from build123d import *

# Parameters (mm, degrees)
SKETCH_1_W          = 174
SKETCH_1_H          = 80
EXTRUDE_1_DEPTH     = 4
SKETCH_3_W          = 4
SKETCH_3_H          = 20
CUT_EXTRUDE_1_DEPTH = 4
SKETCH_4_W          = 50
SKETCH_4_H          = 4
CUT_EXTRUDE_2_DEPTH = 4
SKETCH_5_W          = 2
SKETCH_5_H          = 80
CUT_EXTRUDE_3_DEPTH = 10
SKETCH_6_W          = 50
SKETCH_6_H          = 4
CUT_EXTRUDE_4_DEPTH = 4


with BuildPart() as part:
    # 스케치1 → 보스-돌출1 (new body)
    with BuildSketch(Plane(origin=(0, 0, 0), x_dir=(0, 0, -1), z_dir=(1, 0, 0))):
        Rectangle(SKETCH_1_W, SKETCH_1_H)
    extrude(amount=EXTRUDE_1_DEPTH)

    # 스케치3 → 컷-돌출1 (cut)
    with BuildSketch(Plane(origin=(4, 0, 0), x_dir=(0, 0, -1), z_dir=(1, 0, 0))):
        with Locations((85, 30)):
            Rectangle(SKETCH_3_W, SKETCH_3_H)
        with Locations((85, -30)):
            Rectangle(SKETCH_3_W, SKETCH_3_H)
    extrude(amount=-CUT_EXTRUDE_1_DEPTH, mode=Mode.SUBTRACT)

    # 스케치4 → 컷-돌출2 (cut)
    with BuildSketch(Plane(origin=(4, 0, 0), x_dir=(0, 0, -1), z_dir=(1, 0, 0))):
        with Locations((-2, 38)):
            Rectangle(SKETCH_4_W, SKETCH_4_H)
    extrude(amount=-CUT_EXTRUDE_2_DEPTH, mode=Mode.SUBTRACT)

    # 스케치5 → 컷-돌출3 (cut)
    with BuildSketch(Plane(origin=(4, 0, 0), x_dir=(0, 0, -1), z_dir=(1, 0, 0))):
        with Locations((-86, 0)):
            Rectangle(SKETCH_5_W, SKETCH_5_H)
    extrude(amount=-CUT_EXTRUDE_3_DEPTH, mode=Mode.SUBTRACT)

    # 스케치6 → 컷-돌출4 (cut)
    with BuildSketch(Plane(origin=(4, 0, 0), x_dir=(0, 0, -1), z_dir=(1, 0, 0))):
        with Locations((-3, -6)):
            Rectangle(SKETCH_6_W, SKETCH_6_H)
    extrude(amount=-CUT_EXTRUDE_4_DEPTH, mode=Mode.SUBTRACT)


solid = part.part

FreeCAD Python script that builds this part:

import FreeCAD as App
import Part
import Sketcher
from FreeCAD import Vector

doc = App.newDocument("Part")
body = doc.addObject("PartDesign::Body", "Body")

# Sketch on YZ plane
sketch1 = body.newObject("Sketcher::SketchObject", "Sketch")
sketch1.AttachmentSupport = (doc.getObject("YZ_Plane"), [""])
sketch1.MapMode = "FlatFace"
sketch1.addGeometry([
    Part.LineSegment(Vector(40, 87, 0), Vector(-40, 87, 0)),
    Part.LineSegment(Vector(-40, 87, 0), Vector(-40, -87, 0)),
    Part.LineSegment(Vector(-40, -87, 0), Vector(40, -87, 0)),
    Part.LineSegment(Vector(40, -87, 0), Vector(40, 87, 0)),
], False)
sketch1.addConstraint([
    Sketcher.Constraint("Coincident", 0, 2, 1, 1),
    Sketcher.Constraint("Coincident", 1, 2, 2, 1),
    Sketcher.Constraint("Coincident", 2, 2, 3, 1),
    Sketcher.Constraint("Coincident", 3, 2, 0, 1),
    Sketcher.Constraint("Horizontal", 0),
    Sketcher.Constraint("Vertical", 1),
    Sketcher.Constraint("Horizontal", 2),
    Sketcher.Constraint("Vertical", 3),
    Sketcher.Constraint("Symmetric", 0, 2, 2, 2, -1, 1),
    Sketcher.Constraint("DistanceX", 0, 2, 0, 1, 80.0),
    Sketcher.Constraint("DistanceY", 1, 2, 1, 1, 174.0),
])
pad1 = body.newObject("PartDesign::Pad", "Pad")
pad1.Profile = sketch1
pad1.Length = 4

# Sketch on YZ plane
sketch2 = body.newObject("Sketcher::SketchObject", "Sketch001")
sketch2.AttachmentSupport = (doc.getObject("YZ_Plane"), [""])
sketch2.MapMode = "FlatFace"
sketch2.AttachmentOffset = App.Placement(Vector(0, 0, 4), App.Rotation())
sketch2.addGeometry([
    Part.LineSegment(Vector(40, -83, 0), Vector(20, -83, 0)),  # 0
    Part.LineSegment(Vector(20, -83, 0), Vector(20, -87, 0)),  # 1
    Part.LineSegment(Vector(20, -87, 0), Vector(40, -87, 0)),  # 2
    Part.LineSegment(Vector(40, -87, 0), Vector(40, -83, 0)),  # 3
    Part.LineSegment(Vector(-20, -83, 0), Vector(-40, -83, 0)),  # 4
    Part.LineSegment(Vector(-40, -83, 0), Vector(-40, -87, 0)),  # 5
    Part.LineSegment(Vector(-40, -87, 0), Vector(-20, -87, 0)),  # 6
    Part.LineSegment(Vector(-20, -87, 0), Vector(-20, -83, 0)),  # 7
], False)
sketch2.addConstraint([
    Sketcher.Constraint("Coincident", 0, 2, 1, 1),
    Sketcher.Constraint("Coincident", 1, 2, 2, 1),
    Sketcher.Constraint("Coincident", 2, 2, 3, 1),
    Sketcher.Constraint("Coincident", 3, 2, 0, 1),
    Sketcher.Constraint("Coincident", 4, 2, 5, 1),
    Sketcher.Constraint("Coincident", 5, 2, 6, 1),
    Sketcher.Constraint("Coincident", 6, 2, 7, 1),
    Sketcher.Constraint("Coincident", 7, 2, 4, 1),
    Sketcher.Constraint("Horizontal", 0),
    Sketcher.Constraint("Vertical", 1),
    Sketcher.Constraint("Horizontal", 2),
    Sketcher.Constraint("Vertical", 3),
    Sketcher.Constraint("Horizontal", 4),
    Sketcher.Constraint("Vertical", 5),
    Sketcher.Constraint("Horizontal", 6),
    Sketcher.Constraint("Vertical", 7),
    Sketcher.Constraint("Symmetric", 3, 2, 4, 2, -2),
    Sketcher.Constraint("Symmetric", 1, 2, 6, 2, -2),
    Sketcher.Constraint("DistanceX", 0, 2, 0, 1, 20.0),
    Sketcher.Constraint("DistanceY", 1, 2, 1, 1, 4.0),
    Sketcher.Constraint("DistanceX", -1, 1, 0, 2, 20.0),
    Sketcher.Constraint("DistanceY", 0, 2, -1, 1, 83.0),
])
pocket1 = body.newObject("PartDesign::Pocket", "Pocket")
pocket1.Profile = sketch2
pocket1.Length = 4

# Sketch on YZ plane
sketch3 = body.newObject("Sketcher::SketchObject", "Sketch002")
sketch3.AttachmentSupport = (doc.getObject("YZ_Plane"), [""])
sketch3.MapMode = "FlatFace"
sketch3.AttachmentOffset = App.Placement(Vector(0, 0, 4), App.Rotation())
sketch3.addGeometry([
    Part.LineSegment(Vector(40, 27, 0), Vector(36, 27, 0)),
    Part.LineSegment(Vector(36, 27, 0), Vector(36, -23, 0)),
    Part.LineSegment(Vector(36, -23, 0), Vector(40, -23, 0)),
    Part.LineSegment(Vector(40, -23, 0), Vector(40, 27, 0)),
], False)
sketch3.addConstraint([
    Sketcher.Constraint("Coincident", 0, 2, 1, 1),
    Sketcher.Constraint("Coincident", 1, 2, 2, 1),
    Sketcher.Constraint("Coincident", 2, 2, 3, 1),
    Sketcher.Constraint("Coincident", 3, 2, 0, 1),
    Sketcher.Constraint("Horizontal", 0),
    Sketcher.Constraint("Vertical", 1),
    Sketcher.Constraint("Horizontal", 2),
    Sketcher.Constraint("Vertical", 3),
    Sketcher.Constraint("DistanceX", 0, 2, 0, 1, 4.0),
    Sketcher.Constraint("DistanceY", 1, 2, 1, 1, 50.0),
    Sketcher.Constraint("DistanceX", -1, 1, 0, 2, 36.0),
    Sketcher.Constraint("DistanceY", -1, 1, 0, 2, 27.0),
])
pocket2 = body.newObject("PartDesign::Pocket", "Pocket001")
pocket2.Profile = sketch3
pocket2.Length = 4

# Sketch on YZ plane
sketch4 = body.newObject("Sketcher::SketchObject", "Sketch003")
sketch4.AttachmentSupport = (doc.getObject("YZ_Plane"), [""])
sketch4.MapMode = "FlatFace"
sketch4.AttachmentOffset = App.Placement(Vector(0, 0, 4), App.Rotation())
sketch4.addGeometry([
    Part.LineSegment(Vector(40, 87, 0), Vector(-40, 87, 0)),
    Part.LineSegment(Vector(-40, 87, 0), Vector(-40, 85, 0)),
    Part.LineSegment(Vector(-40, 85, 0), Vector(40, 85, 0)),
    Part.LineSegment(Vector(40, 85, 0), Vector(40, 87, 0)),
], False)
sketch4.addConstraint([
    Sketcher.Constraint("Coincident", 0, 2, 1, 1),
    Sketcher.Constraint("Coincident", 1, 2, 2, 1),
    Sketcher.Constraint("Coincident", 2, 2, 3, 1),
    Sketcher.Constraint("Coincident", 3, 2, 0, 1),
    Sketcher.Constraint("Horizontal", 0),
    Sketcher.Constraint("Vertical", 1),
    Sketcher.Constraint("Horizontal", 2),
    Sketcher.Constraint("Vertical", 3),
    Sketcher.Constraint("DistanceX", 0, 2, 0, 1, 80.0),
    Sketcher.Constraint("DistanceY", 1, 2, 1, 1, 2.0),
    Sketcher.Constraint("DistanceX", 0, 2, -1, 1, 40.0),
    Sketcher.Constraint("DistanceY", -1, 1, 0, 2, 87.0),
])
pocket3 = body.newObject("PartDesign::Pocket", "Pocket002")
pocket3.Profile = sketch4
pocket3.Length = 10

# Sketch on YZ plane
sketch5 = body.newObject("Sketcher::SketchObject", "Sketch004")
sketch5.AttachmentSupport = (doc.getObject("YZ_Plane"), [""])
sketch5.MapMode = "FlatFace"
sketch5.AttachmentOffset = App.Placement(Vector(0, 0, 4), App.Rotation())
sketch5.addGeometry([
    Part.LineSegment(Vector(-4, 28, 0), Vector(-8, 28, 0)),
    Part.LineSegment(Vector(-8, 28, 0), Vector(-8, -22, 0)),
    Part.LineSegment(Vector(-8, -22, 0), Vector(-4, -22, 0)),
    Part.LineSegment(Vector(-4, -22, 0), Vector(-4, 28, 0)),
], False)
sketch5.addConstraint([
    Sketcher.Constraint("Coincident", 0, 2, 1, 1),
    Sketcher.Constraint("Coincident", 1, 2, 2, 1),
    Sketcher.Constraint("Coincident", 2, 2, 3, 1),
    Sketcher.Constraint("Coincident", 3, 2, 0, 1),
    Sketcher.Constraint("Horizontal", 0),
    Sketcher.Constraint("Vertical", 1),
    Sketcher.Constraint("Horizontal", 2),
    Sketcher.Constraint("Vertical", 3),
    Sketcher.Constraint("DistanceX", 0, 2, 0, 1, 4.0),
    Sketcher.Constraint("DistanceY", 1, 2, 1, 1, 50.0),
    Sketcher.Constraint("DistanceX", 0, 2, -1, 1, 8.0),
    Sketcher.Constraint("DistanceY", -1, 1, 0, 2, 28.0),
])
pocket4 = body.newObject("PartDesign::Pocket", "Pocket003")
pocket4.Profile = sketch5
pocket4.Length = 4

doc.recompute()
